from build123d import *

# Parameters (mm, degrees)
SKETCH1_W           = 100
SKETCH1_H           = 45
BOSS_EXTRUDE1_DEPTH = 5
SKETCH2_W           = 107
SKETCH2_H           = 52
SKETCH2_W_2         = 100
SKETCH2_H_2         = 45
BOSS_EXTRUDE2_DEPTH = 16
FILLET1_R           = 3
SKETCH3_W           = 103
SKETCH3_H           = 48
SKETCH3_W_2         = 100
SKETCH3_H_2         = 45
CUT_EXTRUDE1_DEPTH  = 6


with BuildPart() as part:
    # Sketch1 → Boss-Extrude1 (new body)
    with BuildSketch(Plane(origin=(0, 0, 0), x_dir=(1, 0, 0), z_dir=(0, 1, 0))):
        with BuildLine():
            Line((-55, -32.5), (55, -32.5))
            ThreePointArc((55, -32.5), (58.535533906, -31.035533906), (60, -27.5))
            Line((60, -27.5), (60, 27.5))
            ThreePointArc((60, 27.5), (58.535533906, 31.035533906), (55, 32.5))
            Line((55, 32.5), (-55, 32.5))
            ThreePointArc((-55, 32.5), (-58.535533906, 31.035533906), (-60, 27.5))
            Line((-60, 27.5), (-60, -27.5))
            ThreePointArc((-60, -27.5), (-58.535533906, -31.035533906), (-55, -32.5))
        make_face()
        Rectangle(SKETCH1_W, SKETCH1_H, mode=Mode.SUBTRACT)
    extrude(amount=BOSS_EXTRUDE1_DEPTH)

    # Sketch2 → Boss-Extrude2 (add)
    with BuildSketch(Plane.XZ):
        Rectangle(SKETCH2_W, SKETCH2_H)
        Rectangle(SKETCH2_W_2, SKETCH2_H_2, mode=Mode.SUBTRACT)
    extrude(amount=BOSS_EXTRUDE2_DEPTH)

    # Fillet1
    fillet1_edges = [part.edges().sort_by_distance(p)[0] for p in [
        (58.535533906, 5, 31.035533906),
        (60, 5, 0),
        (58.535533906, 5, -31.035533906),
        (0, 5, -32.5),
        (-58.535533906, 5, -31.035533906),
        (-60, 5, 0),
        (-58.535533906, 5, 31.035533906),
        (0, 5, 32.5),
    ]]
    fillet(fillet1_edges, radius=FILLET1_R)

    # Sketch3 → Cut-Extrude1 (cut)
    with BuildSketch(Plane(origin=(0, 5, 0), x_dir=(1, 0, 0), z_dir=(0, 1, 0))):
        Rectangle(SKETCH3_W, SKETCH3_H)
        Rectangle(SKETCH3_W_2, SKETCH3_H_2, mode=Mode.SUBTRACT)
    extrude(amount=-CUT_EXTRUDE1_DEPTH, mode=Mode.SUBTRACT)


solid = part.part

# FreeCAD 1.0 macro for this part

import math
import FreeCAD as App
import Part
import Sketcher

V = App.Vector


def edges_at(feature, points):
    """Names of the edges that pass closest to the given points."""
    edges = feature.Shape.Edges
    near = lambda p: min(range(len(edges)), key=lambda i: edges[i].distToShape(Part.Vertex(*p))[0])
    return sorted({f"Edge{near(p) + 1}" for p in points})


def add_polygon(sketch, points):
    """Adds a closed chain of lines whose ends are joined by coincident constraints."""
    first, n = sketch.GeometryCount, len(points)
    for a, b in zip(points, points[1:] + points[:1]):
        sketch.addGeometry(Part.LineSegment(App.Vector(*a, 0), App.Vector(*b, 0)), False)
    for i in range(n):
        sketch.addConstraint(Sketcher.Constraint("Coincident", first + i, 2, first + (i + 1) % n, 1))

doc = App.newDocument("Part")
params = doc.addObject("Spreadsheet::Sheet", "Params")
for row, (alias, value) in enumerate([
    ("sketch1_radius", "5 mm"),
    ("sketch1_width", "110 mm"),
    ("sketch1_width2", "100 mm"),
    ("sketch1_height", "55 mm"),
    ("sketch1_height2", "45 mm"),
    ("pad1_length", "5 mm"),
    ("sketch2_width", "107 mm"),
    ("sketch2_width2", "100 mm"),
    ("sketch2_height", "52 mm"),
    ("sketch2_height2", "45 mm"),
    ("pad2_length", "16 mm"),
    ("fillet_radius", "3 mm"),
    ("sketch3_width", "103 mm"),
    ("sketch3_width2", "100 mm"),
    ("sketch3_height", "48 mm"),
    ("sketch3_height2", "45 mm"),
    ("pocket1_length", "6 mm"),
], start=1):
    params.set(f"A{row}", alias)
    params.set(f"B{row}", "=" + value)
    params.setAlias(f"B{row}", alias)

body = doc.addObject("PartDesign::Body", "Body")

# Sketch on XZ plane
sketch1 = body.newObject("Sketcher::SketchObject", "Sketch")
sketch1.AttachmentSupport = (doc.getObject("XZ_Plane"), [""])
sketch1.MapMode = "FlatFace"
sketch1.addGeometry(Part.LineSegment(V(-55, 32, 0), V(55, 32, 0)), False)  # 0
sketch1.addGeometry(Part.ArcOfCircle(Part.Circle(V(55, 28, 0), V(0, 0, 1), 5), math.radians(0), math.radians(90)), False)  # 1
sketch1.addGeometry(Part.LineSegment(V(60, 28, 0), V(60, -28, 0)), False)  # 2
sketch1.addGeometry(Part.ArcOfCircle(Part.Circle(V(55, -28, 0), V(0, 0, 1), 5), math.radians(-90), math.radians(0)), False)  # 3
sketch1.addGeometry(Part.LineSegment(V(55, -32, 0), V(-55, -32, 0)), False)  # 4
sketch1.addGeometry(Part.ArcOfCircle(Part.Circle(V(-55, -28, 0), V(0, 0, 1), 5), math.radians(180), math.radians(270)), False)  # 5
sketch1.addGeometry(Part.LineSegment(V(-60, -28, 0), V(-60, 28, 0)), False)  # 6
sketch1.addGeometry(Part.ArcOfCircle(Part.Circle(V(-55, 28, 0), V(0, 0, 1), 5), math.radians(90), math.radians(180)), False)  # 7
add_polygon(sketch1, [(50, 22), (-50, 22), (-50, -22), (50, -22)])  # lines 8-11
sketch1.addConstraint([
    Sketcher.Constraint("Tangent", 0, 2, 1, 2),
    Sketcher.Constraint("Tangent", 1, 1, 2, 1),
    Sketcher.Constraint("Tangent", 2, 2, 3, 2),
    Sketcher.Constraint("Tangent", 3, 1, 4, 1),
    Sketcher.Constraint("Tangent", 4, 2, 5, 2),
    Sketcher.Constraint("Tangent", 5, 1, 6, 1),
    Sketcher.Constraint("Tangent", 6, 2, 7, 2),
    Sketcher.Constraint("Tangent", 7, 1, 0, 1),
    Sketcher.Constraint("Horizontal", 0),
    Sketcher.Constraint("Vertical", 2),
    Sketcher.Constraint("Horizontal", 4),
    Sketcher.Constraint("Vertical", 6),
    Sketcher.Constraint("Horizontal", 8),
    Sketcher.Constraint("Vertical", 9),
    Sketcher.Constraint("Horizontal", 10),
    Sketcher.Constraint("Vertical", 11),
    Sketcher.Constraint("Equal", 1, 3),
    Sketcher.Constraint("Equal", 3, 5),
    Sketcher.Constraint("Equal", 5, 7),
    Sketcher.Constraint("Symmetric", 1, 3, 5, 3, -1, 1),
    Sketcher.Constraint("Symmetric", 8, 2, 10, 2, -1, 1),
    Sketcher.Constraint("Radius", 1, 5.0),
    Sketcher.Constraint("DistanceX", 0, 1, 0, 2, 110.0),
    Sketcher.Constraint("DistanceX", 8, 2, 8, 1, 100.0),
    Sketcher.Constraint("DistanceY", 2, 2, 2, 1, 55.0),
    Sketcher.Constraint("DistanceY", 9, 2, 9, 1, 45.0),
])
sketch1.setExpression("Constraints[25]", "Params.sketch1_radius")
sketch1.setExpression("Constraints[26]", "Params.sketch1_width")
sketch1.setExpression("Constraints[27]", "Params.sketch1_width2")
sketch1.setExpression("Constraints[28]", "Params.sketch1_height")
sketch1.setExpression("Constraints[29]", "Params.sketch1_height2")
pad1 = body.newObject("PartDesign::Pad", "Pad")
pad1.Profile = sketch1
pad1.setExpression("Length", "Params.pad1_length")
pad1.Reversed = True

# Sketch on XZ plane
sketch2 = body.newObject("Sketcher::SketchObject", "Sketch001")
sketch2.AttachmentSupport = (doc.getObject("XZ_Plane"), [""])
sketch2.MapMode = "FlatFace"
add_polygon(sketch2, [(-54, 26), (-54, -26), (54, -26), (54, 26)])  # lines 0-3
add_polygon(sketch2, [(50, -22), (-50, -22), (-50, 22), (50, 22)])  # lines 4-7
sketch2.addConstraint([
    Sketcher.Constraint("Vertical", 0),
    Sketcher.Constraint("Horizontal", 1),
    Sketcher.Constraint("Vertical", 2),
    Sketcher.Constraint("Horizontal", 3),
    Sketcher.Constraint("Horizontal", 4),
    Sketcher.Constraint("Vertical", 5),
    Sketcher.Constraint("Horizontal", 6),
    Sketcher.Constraint("Vertical", 7),
    Sketcher.Constraint("Symmetric", 0, 2, 2, 2, -1, 1),
    Sketcher.Constraint("Symmetric", 4, 2, 6, 2, -1, 1),
    Sketcher.Constraint("DistanceX", 1, 1, 1, 2, 107.0),
    Sketcher.Constraint("DistanceX", 4, 2, 4, 1, 100.0),
    Sketcher.Constraint("DistanceY", 0, 2, 0, 1, 52.0),
    Sketcher.Constraint("DistanceY", 5, 1, 5, 2, 45.0),
])
sketch2.setExpression("Constraints[18]", "Params.sketch2_width")
sketch2.setExpression("Constraints[19]", "Params.sketch2_width2")
sketch2.setExpression("Constraints[20]", "Params.sketch2_height")
sketch2.setExpression("Constraints[21]", "Params.sketch2_height2")
pad2 = body.newObject("PartDesign::Pad", "Pad001")
pad2.Profile = sketch2
pad2.setExpression("Length", "Params.pad2_length")
doc.recompute()

fillet = body.newObject("PartDesign::Fillet", "Fillet")
fillet.Base = (pad2, edges_at(pad2, [
    (58.536, 5, 31.036),
    (60, 5, 0),
    (58.536, 5, -31.036),
    (0, 5, -32.5),
    (-58.536, 5, -31.036),
    (-60, 5, 0),
    (-58.536, 5, 31.036),
    (0, 5, 32.5),
]))
fillet.setExpression("Radius", "Params.fillet_radius")

# Sketch on XZ plane
sketch3 = body.newObject("Sketcher::SketchObject", "Sketch002")
sketch3.AttachmentSupport = (doc.getObject("XZ_Plane"), [""])
sketch3.MapMode = "FlatFace"
sketch3.AttachmentOffset = App.Placement(V(0, 0, -5), App.Rotation())
add_polygon(sketch3, [(-52, -24), (-52, 24), (52, 24), (52, -24)])  # lines 0-3
add_polygon(sketch3, [(50, 22), (-50, 22), (-50, -22), (50, -22)])  # lines 4-7
sketch3.addConstraint([
    Sketcher.Constraint("Vertical", 0),
    Sketcher.Constraint("Horizontal", 1),
    Sketcher.Constraint("Vertical", 2),
    Sketcher.Constraint("Horizontal", 3),
    Sketcher.Constraint("Horizontal", 4),
    Sketcher.Constraint("Vertical", 5),
    Sketcher.Constraint("Horizontal", 6),
    Sketcher.Constraint("Vertical", 7),
    Sketcher.Constraint("Symmetric", 0, 2, 2, 2, -1, 1),
    Sketcher.Constraint("Symmetric", 4, 2, 6, 2, -1, 1),
    Sketcher.Constraint("DistanceX", 1, 1, 1, 2, 103.0),
    Sketcher.Constraint("DistanceX", 4, 2, 4, 1, 100.0),
    Sketcher.Constraint("DistanceY", 0, 1, 0, 2, 48.0),
    Sketcher.Constraint("DistanceY", 5, 2, 5, 1, 45.0),
])
sketch3.setExpression("Constraints[18]", "Params.sketch3_width")
sketch3.setExpression("Constraints[19]", "Params.sketch3_width2")
sketch3.setExpression("Constraints[20]", "Params.sketch3_height")
sketch3.setExpression("Constraints[21]", "Params.sketch3_height2")
pocket1 = body.newObject("PartDesign::Pocket", "Pocket")
pocket1.Profile = sketch3
pocket1.setExpression("Length", "Params.pocket1_length")
pocket1.Reversed = True

doc.recompute()
